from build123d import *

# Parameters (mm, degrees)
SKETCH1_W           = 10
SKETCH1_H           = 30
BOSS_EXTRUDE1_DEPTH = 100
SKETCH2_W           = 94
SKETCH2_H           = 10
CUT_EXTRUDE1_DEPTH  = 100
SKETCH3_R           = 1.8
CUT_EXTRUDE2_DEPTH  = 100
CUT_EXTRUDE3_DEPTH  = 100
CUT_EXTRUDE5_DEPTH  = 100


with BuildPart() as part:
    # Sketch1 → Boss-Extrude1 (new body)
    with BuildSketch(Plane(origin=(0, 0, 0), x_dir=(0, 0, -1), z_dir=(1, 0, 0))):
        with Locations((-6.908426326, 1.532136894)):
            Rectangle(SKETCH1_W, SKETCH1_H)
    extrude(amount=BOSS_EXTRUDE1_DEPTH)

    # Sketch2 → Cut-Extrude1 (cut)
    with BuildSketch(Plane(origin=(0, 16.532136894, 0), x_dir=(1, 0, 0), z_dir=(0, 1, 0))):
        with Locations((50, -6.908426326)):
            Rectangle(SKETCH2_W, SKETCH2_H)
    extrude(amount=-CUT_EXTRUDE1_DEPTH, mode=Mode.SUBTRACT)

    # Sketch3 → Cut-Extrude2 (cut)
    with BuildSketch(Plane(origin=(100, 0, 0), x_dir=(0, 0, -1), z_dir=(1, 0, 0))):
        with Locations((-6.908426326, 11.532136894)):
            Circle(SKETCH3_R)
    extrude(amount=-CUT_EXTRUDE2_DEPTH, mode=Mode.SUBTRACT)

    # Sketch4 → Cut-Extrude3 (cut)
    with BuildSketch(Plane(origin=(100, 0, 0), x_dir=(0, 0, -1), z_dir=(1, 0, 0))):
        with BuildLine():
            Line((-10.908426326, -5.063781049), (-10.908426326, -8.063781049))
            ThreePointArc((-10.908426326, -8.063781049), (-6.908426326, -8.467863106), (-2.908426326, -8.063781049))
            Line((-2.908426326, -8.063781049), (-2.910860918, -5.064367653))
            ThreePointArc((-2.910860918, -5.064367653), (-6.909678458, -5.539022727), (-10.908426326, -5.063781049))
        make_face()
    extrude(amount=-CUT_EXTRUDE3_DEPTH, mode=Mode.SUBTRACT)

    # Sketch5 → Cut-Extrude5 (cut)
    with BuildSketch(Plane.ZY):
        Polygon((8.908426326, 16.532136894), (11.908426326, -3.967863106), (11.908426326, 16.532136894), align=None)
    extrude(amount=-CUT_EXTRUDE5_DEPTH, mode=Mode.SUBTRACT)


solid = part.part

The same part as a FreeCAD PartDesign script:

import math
import FreeCAD as App
import Part
import Sketcher

doc = App.newDocument("Part")
body = doc.addObject("PartDesign::Body", "Body")
body.AllowCompound = True

# Sketch on YZ plane
sketch1 = body.newObject("Sketcher::SketchObject", "Sketch")
sketch1.AttachmentSupport = (doc.getObject("YZ_Plane"), [""])
sketch1.MapMode = "FlatFace"
sketch1.addGeometry([
    Part.LineSegment(App.Vector(17, 12, 0), App.Vector(-13, 12, 0)),
    Part.LineSegment(App.Vector(-13, 12, 0), App.Vector(-13, 2, 0)),
    Part.LineSegment(App.Vector(-13, 2, 0), App.Vector(17, 2, 0)),
    Part.LineSegment(App.Vector(17, 2, 0), App.Vector(17, 12, 0)),
], False)
sketch1.addConstraint([
    Sketcher.Constraint("Coincident", 0, 2, 1, 1),
    Sketcher.Constraint("Coincident", 1, 2, 2, 1),
    Sketcher.Constraint("Coincident", 2, 2, 3, 1),
    Sketcher.Constraint("Coincident", 3, 2, 0, 1),
    Sketcher.Constraint("Horizontal", 0),
    Sketcher.Constraint("Vertical", 1),
    Sketcher.Constraint("Horizontal", 2),
    Sketcher.Constraint("Vertical", 3),
    Sketcher.Constraint("DistanceX", 0, 2, 0, 1, 30.0),
    Sketcher.Constraint("DistanceY", 1, 2, 1, 1, 10.0),
    Sketcher.Constraint("DistanceX", 0, 2, -1, 1, 13.467863),
    Sketcher.Constraint("DistanceY", -1, 1, 0, 2, 11.908426),
])
pad1 = body.newObject("PartDesign::Pad", "Pad")
pad1.Profile = sketch1
pad1.Length = 100

# Sketch on XZ plane
sketch2 = body.newObject("Sketcher::SketchObject", "Sketch001")
sketch2.AttachmentSupport = (doc.getObject("XZ_Plane"), [""])
sketch2.MapMode = "FlatFace"
sketch2.AttachmentOffset = App.Placement(App.Vector(0, 0, -16.532137), App.Rotation())
sketch2.addGeometry([
    Part.LineSegment(App.Vector(3, 2, 0), App.Vector(3, 12, 0)),
    Part.LineSegment(App.Vector(3, 12, 0), App.Vector(97, 12, 0)),
    Part.LineSegment(App.Vector(97, 12, 0), App.Vector(97, 2, 0)),
    Part.LineSegment(App.Vector(97, 2, 0), App.Vector(3, 2, 0)),
], False)
sketch2.addConstraint([
    Sketcher.Constraint("Coincident", 0, 2, 1, 1),
    Sketcher.Constraint("Coincident", 1, 2, 2, 1),
    Sketcher.Constraint("Coincident", 2, 2, 3, 1),
    Sketcher.Constraint("Coincident", 3, 2, 0, 1),
    Sketcher.Constraint("Vertical", 0),
    Sketcher.Constraint("Horizontal", 1),
    Sketcher.Constraint("Vertical", 2),
    Sketcher.Constraint("Horizontal", 3),
    Sketcher.Constraint("DistanceX", 1, 1, 1, 2, 94.0),
    Sketcher.Constraint("DistanceY", 0, 1, 0, 2, 10.0),
    Sketcher.Constraint("DistanceX", -1, 1, 0, 2, 3.0),
    Sketcher.Constraint("DistanceY", -1, 1, 0, 2, 11.908426),
])
pocket1 = body.newObject("PartDesign::Pocket", "Pocket")
pocket1.Profile = sketch2
pocket1.Length = 100
pocket1.Reversed = True

# Sketch on YZ plane
sketch3 = body.newObject("Sketcher::SketchObject", "Sketch002")
sketch3.AttachmentSupport = (doc.getObject("YZ_Plane"), [""])
sketch3.MapMode = "FlatFace"
sketch3.AttachmentOffset = App.Placement(App.Vector(0, 0, 100), App.Rotation())
sketch3.addGeometry(Part.Circle(App.Vector(11.5, 6.9, 0), App.Vector(0, 0, 1), 1.8), False)
sketch3.addConstraint([
    Sketcher.Constraint("Diameter", 0, 3.6),
    Sketcher.Constraint("DistanceX", -1, 1, 0, 3, 11.532137),
    Sketcher.Constraint("DistanceY", -1, 1, 0, 3, 6.908426),
])
pocket2 = body.newObject("PartDesign::Pocket", "Pocket001")
pocket2.Profile = sketch3
pocket2.Length = 100

# Sketch on YZ plane
sketch4 = body.newObject("Sketcher::SketchObject", "Sketch003")
sketch4.AttachmentSupport = (doc.getObject("YZ_Plane"), [""])
sketch4.MapMode = "FlatFace"
sketch4.AttachmentOffset = App.Placement(App.Vector(0, 0, 100), App.Rotation())
sketch4.addGeometry([
    Part.LineSegment(App.Vector(-5.1, 10.9, 0), App.Vector(-8.1, 10.9, 0)),
    Part.ArcOfCircle(Part.Circle(App.Vector(11.5, 6.9, 0), App.Vector(0, 0, 1), 20), math.radians(168), math.radians(192)),
    Part.LineSegment(App.Vector(-8.1, 2.9, 0), App.Vector(-5.1, 2.9, 0)),
    Part.ArcOfCircle(Part.Circle(App.Vector(11.5, 6.9, 0), App.Vector(0, 0, 1), 17.1), math.radians(166), math.radians(194)),
], False)
sketch4.addConstraint([
    Sketcher.Constraint("Coincident", 0, 2, 1, 1),
    Sketcher.Constraint("Coincident", 1, 2, 2, 1),
    Sketcher.Constraint("Coincident", 2, 2, 3, 2),
    Sketcher.Constraint("Coincident", 3, 1, 0, 1),
    Sketcher.Constraint("Horizontal", 0),
    Sketcher.Constraint("Coincident", 3, 3, 1, 3),
    Sketcher.Constraint("Vertical", 0, 2, 1, 2),
    Sketcher.Constraint("Radius", 1, 20.0),
    Sketcher.Constraint("DistanceX", 0, 2, 0, 1, 3.0),
    Sketcher.Constraint("DistanceY", 3, 3, 0, 2, 4.0),
    Sketcher.Constraint("DistanceX", 0, 2, -1, 1, 8.063781),
    Sketcher.Constraint("DistanceY", -1, 1, 2, 2, 2.910861),
    Sketcher.Constraint("Distance", 2, 2.999414),
])
pocket3 = body.newObject("PartDesign::Pocket", "Pocket002")
pocket3.Profile = sketch4
pocket3.Length = 100

# Sketch on YZ plane
sketch5 = body.newObject("Sketcher::SketchObject", "Sketch004")
sketch5.AttachmentSupport = (doc.getObject("YZ_Plane"), [""])
sketch5.MapMode = "FlatFace"
sketch5.addGeometry([
    Part.LineSegment(App.Vector(16.5, 8.9, 0), App.Vector(-4, 11.9, 0)),
    Part.LineSegment(App.Vector(-4, 11.9, 0), App.Vector(16.5, 11.9, 0)),
    Part.LineSegment(App.Vector(16.5, 11.9, 0), App.Vector(16.5, 8.9, 0)),
], False)
sketch5.addConstraint([
    Sketcher.Constraint("Coincident", 0, 2, 1, 1),
    Sketcher.Constraint("Coincident", 1, 2, 2, 1),
    Sketcher.Constraint("Coincident", 2, 2, 0, 1),
    Sketcher.Constraint("Horizontal", 1),
    Sketcher.Constraint("Vertical", 2),
    Sketcher.Constraint("DistanceY", 2, 2, 2, 1, 3.0),
    Sketcher.Constraint("DistanceX", 1, 1, 1, 2, 20.5),
    Sketcher.Constraint("DistanceX", 0, 2, -1, 1, 3.967863),
    Sketcher.Constraint("DistanceY", -1, 1, 0, 2, 11.908426),
])
pocket4 = body.newObject("PartDesign::Pocket", "Pocket003")
pocket4.Profile = sketch5
pocket4.Length = 100
pocket4.Reversed = True

doc.recompute()
